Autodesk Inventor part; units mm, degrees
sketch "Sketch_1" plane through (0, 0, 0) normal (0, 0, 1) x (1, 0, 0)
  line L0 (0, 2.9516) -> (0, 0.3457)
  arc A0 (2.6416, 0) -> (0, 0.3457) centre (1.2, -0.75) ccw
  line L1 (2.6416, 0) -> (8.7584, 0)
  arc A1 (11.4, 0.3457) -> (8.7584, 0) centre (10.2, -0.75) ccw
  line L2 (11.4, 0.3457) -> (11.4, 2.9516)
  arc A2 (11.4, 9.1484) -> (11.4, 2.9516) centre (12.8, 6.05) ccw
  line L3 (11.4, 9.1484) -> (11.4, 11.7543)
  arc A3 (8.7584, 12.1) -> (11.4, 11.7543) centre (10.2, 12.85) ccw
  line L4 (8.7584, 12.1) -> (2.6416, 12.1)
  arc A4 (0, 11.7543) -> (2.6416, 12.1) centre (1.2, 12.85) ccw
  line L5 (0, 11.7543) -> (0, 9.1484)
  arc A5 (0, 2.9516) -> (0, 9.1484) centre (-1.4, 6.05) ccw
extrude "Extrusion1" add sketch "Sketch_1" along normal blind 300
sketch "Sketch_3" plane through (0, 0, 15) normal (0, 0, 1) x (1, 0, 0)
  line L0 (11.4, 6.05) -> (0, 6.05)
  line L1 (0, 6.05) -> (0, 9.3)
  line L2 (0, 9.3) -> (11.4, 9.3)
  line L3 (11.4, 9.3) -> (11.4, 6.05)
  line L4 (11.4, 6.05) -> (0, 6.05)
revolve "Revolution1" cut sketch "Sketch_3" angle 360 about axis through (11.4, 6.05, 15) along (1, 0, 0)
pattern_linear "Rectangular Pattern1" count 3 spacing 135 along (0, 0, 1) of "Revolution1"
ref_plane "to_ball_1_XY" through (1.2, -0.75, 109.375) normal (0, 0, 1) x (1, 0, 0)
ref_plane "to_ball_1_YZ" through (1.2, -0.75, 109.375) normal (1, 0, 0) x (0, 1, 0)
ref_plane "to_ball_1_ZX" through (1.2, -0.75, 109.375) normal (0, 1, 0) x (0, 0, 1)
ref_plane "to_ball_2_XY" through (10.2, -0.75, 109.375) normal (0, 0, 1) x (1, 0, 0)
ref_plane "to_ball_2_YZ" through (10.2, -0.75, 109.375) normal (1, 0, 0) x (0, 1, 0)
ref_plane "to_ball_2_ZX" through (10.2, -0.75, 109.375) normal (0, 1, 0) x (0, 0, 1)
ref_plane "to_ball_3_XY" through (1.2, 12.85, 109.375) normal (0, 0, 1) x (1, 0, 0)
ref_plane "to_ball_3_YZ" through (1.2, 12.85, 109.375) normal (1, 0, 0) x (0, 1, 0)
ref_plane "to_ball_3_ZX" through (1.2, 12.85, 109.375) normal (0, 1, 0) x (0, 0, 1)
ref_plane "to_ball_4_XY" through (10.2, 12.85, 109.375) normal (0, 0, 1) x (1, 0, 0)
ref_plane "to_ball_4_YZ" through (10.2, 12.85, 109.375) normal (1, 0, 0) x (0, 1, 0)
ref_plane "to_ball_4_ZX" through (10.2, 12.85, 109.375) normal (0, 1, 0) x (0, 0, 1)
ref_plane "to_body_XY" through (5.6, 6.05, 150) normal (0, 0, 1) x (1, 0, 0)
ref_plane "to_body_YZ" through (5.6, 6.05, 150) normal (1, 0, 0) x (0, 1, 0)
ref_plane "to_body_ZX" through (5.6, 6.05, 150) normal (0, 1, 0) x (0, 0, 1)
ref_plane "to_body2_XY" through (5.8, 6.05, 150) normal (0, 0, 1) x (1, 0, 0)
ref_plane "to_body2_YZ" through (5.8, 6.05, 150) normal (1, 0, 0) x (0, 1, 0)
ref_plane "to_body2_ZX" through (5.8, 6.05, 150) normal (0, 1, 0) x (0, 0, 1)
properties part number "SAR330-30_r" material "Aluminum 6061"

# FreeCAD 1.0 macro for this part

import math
import FreeCAD as App
import Part
import Sketcher
from FreeCAD import Vector

doc = App.newDocument("Part")
body = doc.addObject("PartDesign::Body", "Body")

sketch1 = doc.addObject("Sketcher::SketchObject", "Sketch")
body.addObject(sketch1)
sketch1.AttachmentSupport = (doc.XY_Plane, [""])
sketch1.MapMode = "FlatFace"
sketch1.addGeometry(Part.ArcOfCircle(Part.Circle(Vector(-1.4, 6.05, 0), Vector(0, 0, 1), 3.400012), math.radians(-65.684353), math.radians(65.684353)), False)
sketch1.addGeometry(Part.LineSegment(Vector(0, 2.9516, 0), Vector(0, 0.3457, 0)), False)
sketch1.addGeometry(Part.ArcOfCircle(Part.Circle(Vector(1.2, -0.75, 0), Vector(0, 0, 1), 1.625026), math.radians(27.485943), math.radians(137.601317)), False)
sketch1.addGeometry(Part.LineSegment(Vector(2.6416, 0, 0), Vector(8.7584, 0, 0)), False)
sketch1.addGeometry(Part.ArcOfCircle(Part.Circle(Vector(10.2, -0.75, 0), Vector(0, 0, 1), 1.62498), math.radians(42.398683), math.radians(152.514057)), False)
sketch1.addGeometry(Part.LineSegment(Vector(11.4, 0.3457, 0), Vector(11.4, 2.9516, 0)), False)
sketch1.addGeometry(Part.ArcOfCircle(Part.Circle(Vector(12.8, 6.05, 0), Vector(0, 0, 1), 3.400012), math.radians(114.315647), math.radians(245.684353)), False)
sketch1.addGeometry(Part.LineSegment(Vector(11.4, 9.1484, 0), Vector(11.4, 11.7543, 0)), False)
sketch1.addGeometry(Part.ArcOfCircle(Part.Circle(Vector(10.2, 12.85, 0), Vector(0, 0, 1), 1.625026), math.radians(-152.514057), math.radians(-42.398683)), False)
sketch1.addGeometry(Part.LineSegment(Vector(8.7584, 12.1, 0), Vector(2.6416, 12.1, 0)), False)
sketch1.addGeometry(Part.ArcOfCircle(Part.Circle(Vector(1.2, 12.85, 0), Vector(0, 0, 1), 1.62498), math.radians(-137.601317), math.radians(-27.485943)), False)
sketch1.addGeometry(Part.LineSegment(Vector(0, 11.7543, 0), Vector(0, 9.1484, 0)), False)
sketch1.addConstraint(Sketcher.Constraint("Coincident", 0, 1, 1, 1))
sketch1.addConstraint(Sketcher.Constraint("Coincident", 1, 2, 2, 2))
sketch1.addConstraint(Sketcher.Constraint("Coincident", 2, 1, 3, 1))
sketch1.addConstraint(Sketcher.Constraint("Coincident", 3, 2, 4, 2))
sketch1.addConstraint(Sketcher.Constraint("Coincident", 4, 1, 5, 1))
sketch1.addConstraint(Sketcher.Constraint("Coincident", 5, 2, 6, 2))
sketch1.addConstraint(Sketcher.Constraint("Coincident", 6, 1, 7, 1))
sketch1.addConstraint(Sketcher.Constraint("Coincident", 7, 2, 8, 2))
sketch1.addConstraint(Sketcher.Constraint("Coincident", 8, 1, 9, 1))
sketch1.addConstraint(Sketcher.Constraint("Coincident", 9, 2, 10, 2))
sketch1.addConstraint(Sketcher.Constraint("Coincident", 10, 1, 11, 1))
sketch1.addConstraint(Sketcher.Constraint("Coincident", 11, 2, 0, 2))
sketch1.addConstraint(Sketcher.Constraint("Vertical", 1))
sketch1.addConstraint(Sketcher.Constraint("Horizontal", 3))
sketch1.addConstraint(Sketcher.Constraint("Vertical", 5))
sketch1.addConstraint(Sketcher.Constraint("Vertical", 7))
sketch1.addConstraint(Sketcher.Constraint("Horizontal", 9))
sketch1.addConstraint(Sketcher.Constraint("Vertical", 11))
sketch1.addConstraint(Sketcher.Constraint("Equal", 2, 4))
sketch1.addConstraint(Sketcher.Constraint("Equal", 0, 6))
sketch1.addConstraint(Sketcher.Constraint("Equal", 4, 8))
sketch1.addConstraint(Sketcher.Constraint("Equal", 8, 10))
sketch1.addConstraint(Sketcher.Constraint("PointOnObject", 0, 1, -2))
sketch1.addConstraint(Sketcher.Constraint("PointOnObject", 2, 1, -1))
sketch1.addConstraint(Sketcher.Constraint("PointOnObject", 10, 1, -2))
sketch1.addConstraint(Sketcher.Constraint("Horizontal", 2, 3, 4, 3))
sketch1.addConstraint(Sketcher.Constraint("Horizontal", 0, 3, 6, 3))
sketch1.addConstraint(Sketcher.Constraint("Horizontal", 8, 3, 10, 3))
sketch1.addConstraint(Sketcher.Constraint("Horizontal", 1, 2, 4, 1))
sketch1.addConstraint(Sketcher.Constraint("Horizontal", 0, 1, 5, 2))
sketch1.addConstraint(Sketcher.Constraint("Horizontal", 7, 2, 10, 1))
sketch1.addConstraint(Sketcher.Constraint("Horizontal", 6, 1, 11, 2))
sketch1.addConstraint(Sketcher.Constraint("Vertical", 4, 3, 8, 3))
sketch1.addConstraint(Sketcher.Constraint("Vertical", 3, 2, 8, 1))
sketch1.addConstraint(Sketcher.Constraint("Equal", 5, 7))
sketch1.addConstraint(Sketcher.Constraint("Radius", 0, 3.4))
sketch1.addConstraint(Sketcher.Constraint("Radius", 2, 1.625))
sketch1.addConstraint(Sketcher.Constraint("DistanceX", 2, 3, 4, 3, 9.0))
sketch1.addConstraint(Sketcher.Constraint("DistanceX", 0, 3, -1, 1, 1.4))
sketch1.addConstraint(Sketcher.Constraint("DistanceX", -1, 1, 2, 3, 1.2))
sketch1.addConstraint(Sketcher.Constraint("DistanceY", -1, 1, 8, 1, 12.1))
sketch1.addConstraint(Sketcher.Constraint("DistanceY", 2, 3, 0, 3, 6.8))
pad1 = doc.addObject("PartDesign::Pad", "Pad")
body.addObject(pad1)
pad1.Profile = sketch1
pad1.Length = 300

sketch2 = doc.addObject("Sketcher::SketchObject", "Sketch001")
body.addObject(sketch2)
sketch2.AttachmentSupport = (doc.XY_Plane, [""])
sketch2.MapMode = "FlatFace"
sketch2.AttachmentOffset = App.Placement(Vector(0, 0, 15), App.Rotation())
sketch2.addGeometry(Part.LineSegment(Vector(0, 6.05, 0), Vector(11.4, 6.05, 0)), False)
sketch2.addGeometry(Part.LineSegment(Vector(11.4, 6.05, 0), Vector(11.4, 9.3, 0)), False)
sketch2.addGeometry(Part.LineSegment(Vector(11.4, 9.3, 0), Vector(0, 9.3, 0)), False)
sketch2.addGeometry(Part.LineSegment(Vector(0, 9.3, 0), Vector(0, 6.05, 0)), False)
sketch2.addGeometry(Part.LineSegment(Vector(0, 6.05, 0), Vector(11.4, 6.05, 0)), True)
sketch2.addConstraint(Sketcher.Constraint("Coincident", 0, 2, 1, 1))
sketch2.addConstraint(Sketcher.Constraint("Coincident", 1, 2, 2, 1))
sketch2.addConstraint(Sketcher.Constraint("Coincident", 2, 2, 3, 1))
sketch2.addConstraint(Sketcher.Constraint("Coincident", 3, 2, 0, 1))
sketch2.addConstraint(Sketcher.Constraint("Horizontal", 0))
sketch2.addConstraint(Sketcher.Constraint("Vertical", 1))
sketch2.addConstraint(Sketcher.Constraint("Horizontal", 2))
sketch2.addConstraint(Sketcher.Constraint("Vertical", 3))
sketch2.addConstraint(Sketcher.Constraint("Horizontal", 4))
sketch2.addConstraint(Sketcher.Constraint("Coincident", 4, 1, 3, 2))
sketch2.addConstraint(Sketcher.Constraint("PointOnObject", 2, 2, -2))
sketch2.addConstraint(Sketcher.Constraint("Vertical", 1, 2, 4, 2))
sketch2.addConstraint(Sketcher.Constraint("DistanceX", 0, 1, 0, 2, 11.4))
sketch2.addConstraint(Sketcher.Constraint("DistanceY", 1, 1, 1, 2, 3.25))
sketch2.addConstraint(Sketcher.Constraint("DistanceY", -1, 1, 1, 2, 9.3))
groove = doc.addObject("PartDesign::Groove", "Groove")
body.addObject(groove)
groove.Profile = sketch2
groove.ReferenceAxis = (sketch2, ["Axis0"])
groove.Angle = 360
doc.recompute()

linearpattern = doc.addObject("PartDesign::LinearPattern", "LinearPattern")
body.addObject(linearpattern)
linearpattern.Originals = [groove]
linearpattern.Direction = (doc.Z_Axis, [""])
linearpattern.Mode = "offset"
linearpattern.Offset = 135
linearpattern.Occurrences = 3
body.Tip = linearpattern

doc.recompute()
